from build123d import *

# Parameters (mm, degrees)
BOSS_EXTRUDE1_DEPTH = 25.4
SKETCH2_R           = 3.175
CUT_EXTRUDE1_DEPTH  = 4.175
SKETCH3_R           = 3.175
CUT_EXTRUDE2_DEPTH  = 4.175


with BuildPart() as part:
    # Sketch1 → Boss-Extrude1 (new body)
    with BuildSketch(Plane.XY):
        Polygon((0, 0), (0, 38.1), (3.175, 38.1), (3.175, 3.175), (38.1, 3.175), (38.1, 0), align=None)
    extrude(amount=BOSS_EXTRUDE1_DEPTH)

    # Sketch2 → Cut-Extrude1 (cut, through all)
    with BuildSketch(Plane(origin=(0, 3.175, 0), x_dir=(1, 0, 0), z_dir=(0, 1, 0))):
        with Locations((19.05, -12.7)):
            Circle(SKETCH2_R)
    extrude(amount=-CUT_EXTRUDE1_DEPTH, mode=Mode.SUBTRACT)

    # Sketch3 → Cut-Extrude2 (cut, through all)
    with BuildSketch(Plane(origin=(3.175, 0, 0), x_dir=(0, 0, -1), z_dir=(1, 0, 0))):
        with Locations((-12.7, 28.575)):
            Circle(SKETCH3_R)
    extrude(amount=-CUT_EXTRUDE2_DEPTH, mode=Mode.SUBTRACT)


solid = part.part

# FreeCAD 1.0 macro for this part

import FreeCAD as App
import Part
import Sketcher
from FreeCAD import Vector
Q = App.Units.Quantity


def add_polygon(sketch, points):
    """Adds a closed chain of lines whose ends are joined by coincident constraints."""
    first, n = sketch.GeometryCount, len(points)
    for a, b in zip(points, points[1:] + points[:1]):
        sketch.addGeometry(Part.LineSegment(App.Vector(*a, 0), App.Vector(*b, 0)), False)
    for i in range(n):
        sketch.addConstraint(Sketcher.Constraint("Coincident", first + i, 2, first + (i + 1) % n, 1))

doc = App.newDocument("Part")
params = doc.addObject("Spreadsheet::Sheet", "Params")
for row, (alias, value) in enumerate([
    ("sketch1_width", "1.5 in"),
    ("sketch1_width2", "1.375 in"),
    ("pad1_length", "1 in"),
    ("sketch2_diameter", "0.25 in"),
    ("sketch3_diameter", "0.25 in"),
], start=1):
    params.set(f"A{row}", alias)
    params.set(f"B{row}", "=" + value)
    params.setAlias(f"B{row}", alias)

body = doc.addObject("PartDesign::Body", "Body")

# Sketch on XY plane
sketch1 = doc.addObject("Sketcher::SketchObject", "Sketch")
body.addObject(sketch1)
sketch1.AttachmentSupport = (doc.XY_Plane, [""])
sketch1.MapMode = "FlatFace"
add_polygon(sketch1, [(0, 38.1), (0, 0), (38.1, 0), (38.1, 3.2), (3.2, 3.2), (3.2, 38.1)])  # lines 0-5
sketch1.addConstraint(Sketcher.Constraint("Vertical", 0))
sketch1.addConstraint(Sketcher.Constraint("Horizontal", 1))
sketch1.addConstraint(Sketcher.Constraint("Vertical", 2))
sketch1.addConstraint(Sketcher.Constraint("Horizontal", 3))
sketch1.addConstraint(Sketcher.Constraint("Vertical", 4))
sketch1.addConstraint(Sketcher.Constraint("Horizontal", 5))
sketch1.addConstraint(Sketcher.Constraint("Coincident", 0, 2, -1, 1))
sketch1.addConstraint(Sketcher.Constraint("Equal", 1, 0))
sketch1.addConstraint(Sketcher.Constraint("Equal", 5, 2))
sketch1.addConstraint(Sketcher.Constraint("DistanceX", 1, 1, 1, 2, Q("1.5 in")))
sketch1.addConstraint(Sketcher.Constraint("DistanceX", 3, 2, 3, 1, Q("1.375 in")))
sketch1.setExpression("Constraints[15]", "Params.sketch1_width")
sketch1.setExpression("Constraints[16]", "Params.sketch1_width2")
pad1 = doc.addObject("PartDesign::Pad", "Pad")
body.addObject(pad1)
pad1.Profile = sketch1
pad1.setExpression("Length", "Params.pad1_length")

# Sketch on XZ plane
sketch2 = doc.addObject("Sketcher::SketchObject", "Sketch001")
body.addObject(sketch2)
sketch2.AttachmentSupport = (doc.XZ_Plane, [""])
sketch2.MapMode = "FlatFace"
sketch2.AttachmentOffset = App.Placement(Vector(0, 0, -0.125 * 25.4), App.Rotation())
sketch2.addGeometry(Part.Circle(Vector(19.1, 12.7, 0), Vector(0, 0, 1), 3.2), False)
sketch2.addConstraint(Sketcher.Constraint("Diameter", 0, Q("0.25 in")))
sketch2.addConstraint(Sketcher.Constraint("DistanceY", -1, 1, 0, 3, Q("0.5 in")))
sketch2.addConstraint(Sketcher.Constraint("DistanceX", -1, 1, 0, 3, Q("0.75 in")))
sketch2.setExpression("Constraints[0]", "Params.sketch2_diameter")
pocket1 = doc.addObject("PartDesign::Pocket", "Pocket")
body.addObject(pocket1)
pocket1.Profile = sketch2
pocket1.Type = "ThroughAll"
pocket1.Reversed = True

# Sketch on YZ plane
sketch3 = doc.addObject("Sketcher::SketchObject", "Sketch002")
body.addObject(sketch3)
sketch3.AttachmentSupport = (doc.YZ_Plane, [""])
sketch3.MapMode = "FlatFace"
sketch3.AttachmentOffset = App.Placement(Vector(0, 0, 0.125 * 25.4), App.Rotation())
sketch3.addGeometry(Part.Circle(Vector(28.6, 12.7, 0), Vector(0, 0, 1), 3.2), False)
sketch3.addConstraint(Sketcher.Constraint("Diameter", 0, Q("0.25 in")))
sketch3.addConstraint(Sketcher.Constraint("DistanceY", -1, 1, 0, 3, Q("0.5 in")))
sketch3.addConstraint(Sketcher.Constraint("DistanceX", -1, 1, 0, 3, Q("1.125 in")))
sketch3.setExpression("Constraints[0]", "Params.sketch3_diameter")
pocket2 = doc.addObject("PartDesign::Pocket", "Pocket001")
body.addObject(pocket2)
pocket2.Profile = sketch3
pocket2.Type = "ThroughAll"

doc.recompute()
